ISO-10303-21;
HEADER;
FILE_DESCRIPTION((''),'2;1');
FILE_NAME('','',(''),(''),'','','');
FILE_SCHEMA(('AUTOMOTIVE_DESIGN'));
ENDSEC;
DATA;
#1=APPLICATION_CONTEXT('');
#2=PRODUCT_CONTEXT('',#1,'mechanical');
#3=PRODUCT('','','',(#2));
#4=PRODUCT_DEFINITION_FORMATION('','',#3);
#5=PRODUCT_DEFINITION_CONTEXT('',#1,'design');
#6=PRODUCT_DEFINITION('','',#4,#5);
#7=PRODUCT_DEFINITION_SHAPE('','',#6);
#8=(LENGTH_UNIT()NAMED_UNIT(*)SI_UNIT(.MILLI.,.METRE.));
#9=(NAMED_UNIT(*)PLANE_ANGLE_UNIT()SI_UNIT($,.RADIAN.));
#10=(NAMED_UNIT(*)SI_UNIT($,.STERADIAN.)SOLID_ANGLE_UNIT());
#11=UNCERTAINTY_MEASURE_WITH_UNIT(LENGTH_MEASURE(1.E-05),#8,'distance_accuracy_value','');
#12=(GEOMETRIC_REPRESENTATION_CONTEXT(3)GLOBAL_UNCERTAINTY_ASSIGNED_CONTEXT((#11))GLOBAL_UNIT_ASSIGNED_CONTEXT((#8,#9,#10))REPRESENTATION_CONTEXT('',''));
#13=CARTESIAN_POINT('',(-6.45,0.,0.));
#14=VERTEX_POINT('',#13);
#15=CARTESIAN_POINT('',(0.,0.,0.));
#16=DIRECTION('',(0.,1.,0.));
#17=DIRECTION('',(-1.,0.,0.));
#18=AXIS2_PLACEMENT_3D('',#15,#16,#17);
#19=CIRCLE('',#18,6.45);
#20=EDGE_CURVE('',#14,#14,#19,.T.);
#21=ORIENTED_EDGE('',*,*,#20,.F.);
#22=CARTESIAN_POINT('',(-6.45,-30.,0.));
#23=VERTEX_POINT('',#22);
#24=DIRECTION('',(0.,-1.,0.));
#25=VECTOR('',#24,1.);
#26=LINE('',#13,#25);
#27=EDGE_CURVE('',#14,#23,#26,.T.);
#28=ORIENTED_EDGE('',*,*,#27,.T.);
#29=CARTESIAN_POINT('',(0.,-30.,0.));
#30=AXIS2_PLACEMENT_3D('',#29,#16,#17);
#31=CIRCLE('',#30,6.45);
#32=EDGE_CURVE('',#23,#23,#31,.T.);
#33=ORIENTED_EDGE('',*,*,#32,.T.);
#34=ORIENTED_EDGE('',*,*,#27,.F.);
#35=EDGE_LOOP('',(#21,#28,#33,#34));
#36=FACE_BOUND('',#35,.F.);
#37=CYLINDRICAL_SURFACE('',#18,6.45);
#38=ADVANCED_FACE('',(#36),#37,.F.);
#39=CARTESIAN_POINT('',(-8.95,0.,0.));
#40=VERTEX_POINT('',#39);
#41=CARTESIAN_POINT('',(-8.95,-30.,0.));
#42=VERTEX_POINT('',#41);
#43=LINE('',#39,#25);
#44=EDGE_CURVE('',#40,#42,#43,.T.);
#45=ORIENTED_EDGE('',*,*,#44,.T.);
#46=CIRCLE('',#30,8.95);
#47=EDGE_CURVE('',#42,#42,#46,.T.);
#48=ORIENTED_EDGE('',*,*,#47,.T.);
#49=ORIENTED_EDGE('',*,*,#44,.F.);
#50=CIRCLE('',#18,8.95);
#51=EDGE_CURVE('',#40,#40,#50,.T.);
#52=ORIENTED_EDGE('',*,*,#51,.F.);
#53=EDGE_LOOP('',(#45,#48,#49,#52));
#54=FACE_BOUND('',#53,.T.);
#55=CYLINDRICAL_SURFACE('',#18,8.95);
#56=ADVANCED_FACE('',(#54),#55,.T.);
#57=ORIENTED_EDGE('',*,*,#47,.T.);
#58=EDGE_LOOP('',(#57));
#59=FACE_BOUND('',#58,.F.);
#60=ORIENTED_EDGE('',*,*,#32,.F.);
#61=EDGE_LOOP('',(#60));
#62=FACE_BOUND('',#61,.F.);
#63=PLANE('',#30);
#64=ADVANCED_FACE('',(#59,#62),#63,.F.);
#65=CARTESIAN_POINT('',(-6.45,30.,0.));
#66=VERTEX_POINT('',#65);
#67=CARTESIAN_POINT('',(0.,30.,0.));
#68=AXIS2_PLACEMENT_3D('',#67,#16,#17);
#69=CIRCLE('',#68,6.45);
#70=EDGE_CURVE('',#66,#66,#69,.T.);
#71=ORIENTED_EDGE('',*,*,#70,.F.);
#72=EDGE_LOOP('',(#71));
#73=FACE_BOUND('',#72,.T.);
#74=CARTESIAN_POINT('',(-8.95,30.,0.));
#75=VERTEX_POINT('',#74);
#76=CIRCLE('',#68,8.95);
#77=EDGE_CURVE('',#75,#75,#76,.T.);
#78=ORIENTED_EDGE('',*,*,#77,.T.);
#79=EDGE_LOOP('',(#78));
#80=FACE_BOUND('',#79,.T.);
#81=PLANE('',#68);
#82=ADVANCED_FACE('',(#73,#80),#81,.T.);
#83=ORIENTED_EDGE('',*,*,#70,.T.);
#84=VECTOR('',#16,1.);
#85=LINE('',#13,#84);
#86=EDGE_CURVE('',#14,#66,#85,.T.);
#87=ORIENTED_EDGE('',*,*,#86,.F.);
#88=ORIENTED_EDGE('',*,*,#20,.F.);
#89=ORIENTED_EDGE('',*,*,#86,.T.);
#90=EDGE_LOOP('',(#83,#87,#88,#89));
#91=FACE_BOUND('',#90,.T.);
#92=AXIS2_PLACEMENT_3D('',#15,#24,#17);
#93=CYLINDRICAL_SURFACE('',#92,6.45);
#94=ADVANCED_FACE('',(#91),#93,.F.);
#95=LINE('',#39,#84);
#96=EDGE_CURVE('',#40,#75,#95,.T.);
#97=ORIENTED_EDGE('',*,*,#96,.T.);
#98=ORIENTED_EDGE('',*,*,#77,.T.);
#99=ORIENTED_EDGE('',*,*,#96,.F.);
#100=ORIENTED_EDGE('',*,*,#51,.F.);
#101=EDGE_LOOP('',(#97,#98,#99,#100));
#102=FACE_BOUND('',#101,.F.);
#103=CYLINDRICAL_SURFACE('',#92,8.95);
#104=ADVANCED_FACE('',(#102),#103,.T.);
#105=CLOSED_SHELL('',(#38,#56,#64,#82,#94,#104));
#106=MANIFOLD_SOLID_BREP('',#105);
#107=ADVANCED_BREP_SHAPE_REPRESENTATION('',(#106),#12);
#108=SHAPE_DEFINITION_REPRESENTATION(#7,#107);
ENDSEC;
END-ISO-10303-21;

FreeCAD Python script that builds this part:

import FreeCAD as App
import Part
import Sketcher

V = App.Vector
Q = App.Units.Quantity

doc = App.newDocument("Part")
body = doc.addObject("PartDesign::Body", "Body")

sketch1 = body.newObject("Sketcher::SketchObject", "Sketch")
sketch1.AttachmentSupport = (doc.getObject("XZ_Plane"), [""])
sketch1.MapMode = "FlatFace"
sketch1.addGeometry(Part.Circle(V(0, 0, 0), V(0, 0, 1), 9), False)
sketch1.addGeometry(Part.Circle(V(0, 0, 0), V(0, 0, 1), 6), False)
sketch1.addConstraint(Sketcher.Constraint("Coincident", 0, 3, -1, 1))
sketch1.addConstraint(Sketcher.Constraint("Coincident", 1, 3, -1, 1))
sketch1.addConstraint(Sketcher.Constraint("Diameter", 0, Q("17.9 mm")))
sketch1.addConstraint(Sketcher.Constraint("Diameter", 1, Q("12.9 mm")))
pad1 = body.newObject("PartDesign::Pad", "Pad")
pad1.Profile = sketch1
pad1.Length = 60
pad1.Midplane = True

doc.recompute()
